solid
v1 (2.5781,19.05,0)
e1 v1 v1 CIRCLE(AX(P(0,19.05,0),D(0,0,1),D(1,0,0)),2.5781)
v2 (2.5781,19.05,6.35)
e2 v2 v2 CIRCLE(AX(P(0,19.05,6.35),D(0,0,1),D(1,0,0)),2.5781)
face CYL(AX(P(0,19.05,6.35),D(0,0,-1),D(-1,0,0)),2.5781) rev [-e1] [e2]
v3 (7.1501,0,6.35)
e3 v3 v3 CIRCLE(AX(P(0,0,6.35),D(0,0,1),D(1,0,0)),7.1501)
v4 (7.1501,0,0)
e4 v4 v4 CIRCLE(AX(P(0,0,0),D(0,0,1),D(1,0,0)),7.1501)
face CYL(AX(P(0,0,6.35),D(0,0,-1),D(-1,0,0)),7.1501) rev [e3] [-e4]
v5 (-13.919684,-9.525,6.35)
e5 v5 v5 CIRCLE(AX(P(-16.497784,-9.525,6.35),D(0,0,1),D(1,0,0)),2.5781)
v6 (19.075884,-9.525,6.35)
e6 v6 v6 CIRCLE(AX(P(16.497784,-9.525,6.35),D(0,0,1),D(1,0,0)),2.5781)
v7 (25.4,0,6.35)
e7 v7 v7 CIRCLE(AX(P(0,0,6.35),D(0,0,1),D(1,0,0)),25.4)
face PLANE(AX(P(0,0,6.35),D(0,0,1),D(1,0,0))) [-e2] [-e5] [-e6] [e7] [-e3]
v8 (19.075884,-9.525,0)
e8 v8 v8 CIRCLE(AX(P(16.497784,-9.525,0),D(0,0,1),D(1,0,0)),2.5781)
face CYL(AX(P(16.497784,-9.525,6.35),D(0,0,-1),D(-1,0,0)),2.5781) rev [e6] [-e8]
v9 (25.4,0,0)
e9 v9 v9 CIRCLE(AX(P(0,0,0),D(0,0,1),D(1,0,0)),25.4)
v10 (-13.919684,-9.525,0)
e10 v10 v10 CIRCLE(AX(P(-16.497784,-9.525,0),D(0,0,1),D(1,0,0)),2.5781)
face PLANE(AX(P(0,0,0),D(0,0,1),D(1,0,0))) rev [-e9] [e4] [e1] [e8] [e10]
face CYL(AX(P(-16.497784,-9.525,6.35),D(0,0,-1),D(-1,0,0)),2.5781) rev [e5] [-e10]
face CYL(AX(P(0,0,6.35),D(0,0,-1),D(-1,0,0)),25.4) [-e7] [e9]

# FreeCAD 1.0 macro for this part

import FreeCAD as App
import Part
import Sketcher

V = App.Vector
Q = App.Units.Quantity

doc = App.newDocument("Part")
body = doc.addObject("PartDesign::Body", "Body")

sketch1 = body.newObject("Sketcher::SketchObject", "Sketch")
sketch1.AttachmentSupport = (doc.getObject("XY_Plane"), [""])
sketch1.MapMode = "FlatFace"
sketch1.addGeometry(Part.Circle(V(0, 0, 0), V(0, 0, 1), 25.4), False)
sketch1.addConstraint([
    Sketcher.Constraint("Coincident", 0, 3, -1, 1),
    Sketcher.Constraint("Diameter", 0, Q("2 in")),
])
pad1 = body.newObject("PartDesign::Pad", "Pad")
pad1.Profile = sketch1
pad1.Length = Q("0.25 in")

sketch2 = body.newObject("Sketcher::SketchObject", "Sketch001")
sketch2.AttachmentSupport = (doc.getObject("XY_Plane"), [""])
sketch2.MapMode = "FlatFace"
sketch2.addGeometry([
    Part.Circle(V(0, 19.05, 0), V(0, 0, 1), 2.5781),
    Part.Circle(V(16.497784, -9.525, 0), V(0, 0, 1), 2.5781),
    Part.Circle(V(-16.497784, -9.525, 0), V(0, 0, 1), 2.5781),
], False)
sketch2.addConstraint([
    Sketcher.Constraint("Equal", 0, 1),
    Sketcher.Constraint("Equal", 1, 2),
    Sketcher.Constraint("Symmetric", 1, 3, 2, 3, -2),
    Sketcher.Constraint("PointOnObject", 0, 3, -2),
    Sketcher.Constraint("Diameter", 0, Q("0.203 in")),
    Sketcher.Constraint("DistanceY", -1, 1, 0, 3, Q("0.75 in")),
    Sketcher.Constraint("DistanceY", 1, 3, -1, 1, Q("0.375 in")),
    Sketcher.Constraint("DistanceX", -1, 1, 1, 3, 16.497784),
])
pocket1 = body.newObject("PartDesign::Pocket", "Pocket")
pocket1.Profile = sketch2
pocket1.Length = Q("0.25 in")
pocket1.Reversed = True

sketch3 = body.newObject("Sketcher::SketchObject", "Sketch002")
sketch3.AttachmentSupport = (doc.getObject("XY_Plane"), [""])
sketch3.MapMode = "FlatFace"
sketch3.addGeometry(Part.Circle(V(0, 0, 0), V(0, 0, 1), 7.1501), False)
sketch3.addConstraint([
    Sketcher.Constraint("Coincident", 0, 3, -1, 1),
    Sketcher.Constraint("Diameter", 0, Q("0.563 in")),
])
pocket2 = body.newObject("PartDesign::Pocket", "Pocket001")
pocket2.Profile = sketch3
pocket2.Length = Q("0.25 in")
pocket2.Reversed = True

doc.recompute()
